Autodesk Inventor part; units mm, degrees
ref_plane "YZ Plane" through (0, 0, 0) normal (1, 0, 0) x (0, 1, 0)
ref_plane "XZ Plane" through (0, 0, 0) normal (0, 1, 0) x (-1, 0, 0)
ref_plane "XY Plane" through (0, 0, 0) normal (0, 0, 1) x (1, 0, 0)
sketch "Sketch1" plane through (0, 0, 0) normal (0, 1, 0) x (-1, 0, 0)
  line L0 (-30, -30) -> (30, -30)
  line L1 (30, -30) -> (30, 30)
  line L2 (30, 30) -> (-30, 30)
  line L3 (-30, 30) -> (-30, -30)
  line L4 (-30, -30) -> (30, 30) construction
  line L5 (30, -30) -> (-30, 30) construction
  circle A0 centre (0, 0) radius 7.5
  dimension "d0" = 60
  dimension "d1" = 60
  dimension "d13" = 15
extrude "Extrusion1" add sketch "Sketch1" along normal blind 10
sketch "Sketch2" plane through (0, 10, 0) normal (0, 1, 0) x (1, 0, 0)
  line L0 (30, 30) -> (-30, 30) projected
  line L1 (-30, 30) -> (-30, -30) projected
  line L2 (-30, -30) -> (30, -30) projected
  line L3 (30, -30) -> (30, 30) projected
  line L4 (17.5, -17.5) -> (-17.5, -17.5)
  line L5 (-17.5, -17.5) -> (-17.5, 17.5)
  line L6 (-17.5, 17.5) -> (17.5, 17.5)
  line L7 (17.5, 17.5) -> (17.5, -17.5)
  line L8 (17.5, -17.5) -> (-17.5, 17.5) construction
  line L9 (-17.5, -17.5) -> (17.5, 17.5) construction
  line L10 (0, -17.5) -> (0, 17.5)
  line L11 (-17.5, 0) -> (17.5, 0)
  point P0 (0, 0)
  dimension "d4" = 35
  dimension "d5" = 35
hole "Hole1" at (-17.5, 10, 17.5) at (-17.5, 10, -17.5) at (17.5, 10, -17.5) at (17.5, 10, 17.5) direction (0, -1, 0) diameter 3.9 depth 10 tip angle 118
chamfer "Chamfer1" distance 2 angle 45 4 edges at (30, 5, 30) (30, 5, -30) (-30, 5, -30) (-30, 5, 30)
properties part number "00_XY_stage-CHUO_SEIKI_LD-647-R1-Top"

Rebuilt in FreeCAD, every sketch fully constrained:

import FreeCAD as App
import Part
import Sketcher


def edges_at(feature, points):
    """Names of the edges that pass closest to the given points."""
    edges = feature.Shape.Edges
    near = lambda p: min(range(len(edges)), key=lambda i: edges[i].distToShape(Part.Vertex(*p))[0])
    return sorted({f"Edge{near(p) + 1}" for p in points})


def add_polygon(sketch, points):
    """Adds a closed chain of lines whose ends are joined by coincident constraints."""
    first, n = sketch.GeometryCount, len(points)
    for a, b in zip(points, points[1:] + points[:1]):
        sketch.addGeometry(Part.LineSegment(App.Vector(*a, 0), App.Vector(*b, 0)), False)
    for i in range(n):
        sketch.addConstraint(Sketcher.Constraint("Coincident", first + i, 2, first + (i + 1) % n, 1))

doc = App.newDocument("Part")
body = doc.addObject("PartDesign::Body", "Body")

# Sketch on XZ plane
sketch1 = doc.addObject("Sketcher::SketchObject", "Sketch")
body.addObject(sketch1)
sketch1.AttachmentSupport = (doc.XZ_Plane, [""])
sketch1.MapMode = "FlatFace"
add_polygon(sketch1, [(30, 30), (30, -30), (-30, -30), (-30, 30)])  # lines 0-3
sketch1.addGeometry(Part.Circle(App.Vector(0, 0, 0), App.Vector(0, 0, 1), 7.5), False)  # 4
sketch1.addConstraint([
    Sketcher.Constraint("Vertical", 0),
    Sketcher.Constraint("Horizontal", 1),
    Sketcher.Constraint("Vertical", 2),
    Sketcher.Constraint("Horizontal", 3),
    Sketcher.Constraint("Coincident", 4, 3, -1, 1),
    Sketcher.Constraint("Symmetric", 0, 2, 2, 2, -1, 1),
    Sketcher.Constraint("Equal", 3, 0),
    Sketcher.Constraint("Diameter", 4, 15.0),
    Sketcher.Constraint("DistanceX", 1, 2, 1, 1, 60.0),
])
pad1 = doc.addObject("PartDesign::Pad", "Pad")
body.addObject(pad1)
pad1.Profile = sketch1
pad1.Length = 10
pad1.Reversed = True

# Sketch on XZ plane
sketch2 = doc.addObject("Sketcher::SketchObject", "Sketch001")
body.addObject(sketch2)
sketch2.AttachmentSupport = (doc.XZ_Plane, [""])
sketch2.MapMode = "FlatFace"
sketch2.AttachmentOffset = App.Placement(App.Vector(0, 0, -10), App.Rotation())
sketch2.addGeometry([
    Part.Circle(App.Vector(-17.5, 17.5, 0), App.Vector(0, 0, 1), 1.95),
    Part.Circle(App.Vector(-17.5, -17.5, 0), App.Vector(0, 0, 1), 1.95),
    Part.Circle(App.Vector(17.5, -17.5, 0), App.Vector(0, 0, 1), 1.95),
    Part.Circle(App.Vector(17.5, 17.5, 0), App.Vector(0, 0, 1), 1.95),
], False)
sketch2.addConstraint([
    Sketcher.Constraint("Equal", 0, 1),
    Sketcher.Constraint("Equal", 1, 2),
    Sketcher.Constraint("Equal", 2, 3),
    Sketcher.Constraint("Symmetric", 0, 3, 2, 3, -1, 1),
    Sketcher.Constraint("Symmetric", 1, 3, 3, 3, -1, 1),
    Sketcher.Constraint("Symmetric", 1, 3, 2, 3, -2),
    Sketcher.Constraint("Diameter", 0, 3.9),
    Sketcher.Constraint("DistanceY", 1, 3, 0, 3, 35.0),
    Sketcher.Constraint("DistanceX", 1, 3, 2, 3, 35.0),
])
doc.recompute()
hole = doc.addObject("PartDesign::Hole", "Hole")
body.addObject(hole)
hole.Profile = sketch2
hole.ThreadType = "None"
hole.Diameter = 3.9
hole.DepthType = "Dimension"
hole.Depth = 10
hole.DrillPoint = "Angled"
hole.DrillPointAngle = 118
hole.Reversed = True
doc.recompute()

chamfer = doc.addObject("PartDesign::Chamfer", "Chamfer")
body.addObject(chamfer)
chamfer.Base = (hole, edges_at(hole, [
    (30, 5, 30),
    (30, 5, -30),
    (-30, 5, -30),
    (-30, 5, 30),
]))
chamfer.Size = 2

doc.recompute()
